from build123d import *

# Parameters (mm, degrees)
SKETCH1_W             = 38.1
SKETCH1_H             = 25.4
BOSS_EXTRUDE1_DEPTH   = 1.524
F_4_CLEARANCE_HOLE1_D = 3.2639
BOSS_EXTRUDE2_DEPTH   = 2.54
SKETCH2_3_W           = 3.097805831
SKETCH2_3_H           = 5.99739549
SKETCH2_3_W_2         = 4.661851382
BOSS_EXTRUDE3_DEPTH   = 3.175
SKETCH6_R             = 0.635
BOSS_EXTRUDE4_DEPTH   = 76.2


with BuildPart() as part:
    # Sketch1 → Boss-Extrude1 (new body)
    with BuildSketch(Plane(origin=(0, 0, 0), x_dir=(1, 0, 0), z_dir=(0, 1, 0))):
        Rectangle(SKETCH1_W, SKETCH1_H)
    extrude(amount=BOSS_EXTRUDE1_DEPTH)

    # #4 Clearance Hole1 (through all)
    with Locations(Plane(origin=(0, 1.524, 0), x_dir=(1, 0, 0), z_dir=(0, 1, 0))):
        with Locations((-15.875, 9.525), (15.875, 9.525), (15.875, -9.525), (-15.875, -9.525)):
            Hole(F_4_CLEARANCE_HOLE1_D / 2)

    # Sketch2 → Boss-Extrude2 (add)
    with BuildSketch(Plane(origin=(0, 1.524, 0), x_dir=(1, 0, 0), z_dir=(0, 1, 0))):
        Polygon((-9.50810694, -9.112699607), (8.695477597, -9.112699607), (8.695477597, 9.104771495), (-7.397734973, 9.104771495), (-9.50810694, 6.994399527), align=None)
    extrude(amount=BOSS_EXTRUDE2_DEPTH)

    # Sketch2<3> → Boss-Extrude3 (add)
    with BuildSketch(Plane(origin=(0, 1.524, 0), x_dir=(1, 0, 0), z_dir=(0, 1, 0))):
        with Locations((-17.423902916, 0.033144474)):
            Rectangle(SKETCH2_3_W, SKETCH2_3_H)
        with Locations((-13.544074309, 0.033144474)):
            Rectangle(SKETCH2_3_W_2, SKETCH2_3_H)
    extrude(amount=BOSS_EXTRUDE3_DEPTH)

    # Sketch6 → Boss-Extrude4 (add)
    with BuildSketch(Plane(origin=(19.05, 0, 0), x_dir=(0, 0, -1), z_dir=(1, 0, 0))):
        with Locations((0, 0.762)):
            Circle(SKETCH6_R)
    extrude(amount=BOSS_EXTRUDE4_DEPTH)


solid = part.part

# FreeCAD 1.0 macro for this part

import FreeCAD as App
import Part
import Sketcher
Q = App.Units.Quantity


def add_polygon(sketch, points):
    """Adds a closed chain of lines whose ends are joined by coincident constraints."""
    first, n = sketch.GeometryCount, len(points)
    for a, b in zip(points, points[1:] + points[:1]):
        sketch.addGeometry(Part.LineSegment(App.Vector(*a, 0), App.Vector(*b, 0)), False)
    for i in range(n):
        sketch.addConstraint(Sketcher.Constraint("Coincident", first + i, 2, first + (i + 1) % n, 1))

doc = App.newDocument("Part")
body = doc.addObject("PartDesign::Body", "Body")

sketch1 = doc.addObject("Sketcher::SketchObject", "Sketch")
body.addObject(sketch1)
sketch1.AttachmentSupport = (doc.XZ_Plane, [""])
sketch1.MapMode = "FlatFace"
add_polygon(sketch1, [(-19, -13), (-19, 13), (19, 13), (19, -13)])
sketch1.addConstraint([
    Sketcher.Constraint("Vertical", 0),
    Sketcher.Constraint("Horizontal", 1),
    Sketcher.Constraint("Vertical", 2),
    Sketcher.Constraint("Horizontal", 3),
    Sketcher.Constraint("Symmetric", 0, 2, 2, 2, -1, 1),
    Sketcher.Constraint("DistanceY", 0, 1, 0, 2, Q("1 in")),
    Sketcher.Constraint("DistanceX", 1, 1, 1, 2, Q("1.5 in")),
])
pad1 = doc.addObject("PartDesign::Pad", "Pad")
body.addObject(pad1)
pad1.Profile = sketch1
pad1.Length = Q("0.06 in")
pad1.Reversed = True

sketch2 = doc.addObject("Sketcher::SketchObject", "Sketch001")
body.addObject(sketch2)
sketch2.AttachmentSupport = (doc.XZ_Plane, [""])
sketch2.MapMode = "FlatFace"
sketch2.AttachmentOffset = App.Placement(App.Vector(0, 0, -0.06 * 25.4), App.Rotation())
sketch2.addGeometry([
    Part.Circle(App.Vector(-15.9, -9.5, 0), App.Vector(0, 0, 1), 1.6),
    Part.Circle(App.Vector(15.9, -9.5, 0), App.Vector(0, 0, 1), 1.6),
    Part.Circle(App.Vector(15.9, 9.5, 0), App.Vector(0, 0, 1), 1.6),
    Part.Circle(App.Vector(-15.9, 9.5, 0), App.Vector(0, 0, 1), 1.6),
], False)
sketch2.addConstraint([
    Sketcher.Constraint("Equal", 0, 1),
    Sketcher.Constraint("Equal", 1, 2),
    Sketcher.Constraint("Equal", 2, 3),
    Sketcher.Constraint("Symmetric", 0, 3, 2, 3, -1, 1),
    Sketcher.Constraint("Symmetric", 1, 3, 3, 3, -1, 1),
    Sketcher.Constraint("Symmetric", 0, 3, 1, 3, -2),
    Sketcher.Constraint("Diameter", 0, Q("0.1285 in")),
    Sketcher.Constraint("DistanceX", 0, 3, 1, 3, Q("1.25 in")),
    Sketcher.Constraint("DistanceY", 1, 3, 2, 3, Q("0.75 in")),
])
doc.recompute()
hole = doc.addObject("PartDesign::Hole", "Hole")
body.addObject(hole)
hole.Profile = sketch2
hole.ThreadType = "None"
hole.Diameter = Q("0.1285 in")
hole.DepthType = "ThroughAll"
hole.Reversed = True

sketch3 = doc.addObject("Sketcher::SketchObject", "Sketch002")
body.addObject(sketch3)
sketch3.AttachmentSupport = (doc.XZ_Plane, [""])
sketch3.MapMode = "FlatFace"
sketch3.AttachmentOffset = App.Placement(App.Vector(0, 0, -0.06 * 25.4), App.Rotation())
add_polygon(sketch3, [(-9.5, 9.1), (8.7, 9.1), (8.7, -9.1), (-7.4, -9.1), (-9.5, -7)])
sketch3.addConstraint([
    Sketcher.Constraint("Horizontal", 0),
    Sketcher.Constraint("Vertical", 1),
    Sketcher.Constraint("Horizontal", 2),
    Sketcher.Constraint("Vertical", 4),
    Sketcher.Constraint("Angle", 3, Q("135 deg")),
    Sketcher.Constraint("DistanceY", 4, 1, 4, 2, 16.107099),
    Sketcher.Constraint("DistanceY", 1, 2, 1, 1, 18.217471),
    Sketcher.Constraint("DistanceY", -1, 1, 0, 2, 9.1127),
    Sketcher.Constraint("DistanceX", 0, 1, 0, 2, 18.203585),
    Sketcher.Constraint("DistanceX", -1, 1, 0, 2, 8.695478),
])
pad2 = doc.addObject("PartDesign::Pad", "Pad001")
body.addObject(pad2)
pad2.Profile = sketch3
pad2.Length = Q("0.1 in")
pad2.Reversed = True

sketch4 = doc.addObject("Sketcher::SketchObject", "Sketch003")
body.addObject(sketch4)
sketch4.AttachmentSupport = (doc.XZ_Plane, [""])
sketch4.MapMode = "FlatFace"
sketch4.AttachmentOffset = App.Placement(App.Vector(0, 0, -0.06 * 25.4), App.Rotation())
add_polygon(sketch4, [(-19, -3), (-19, 3), (-11, 3), (-11, -3)])
sketch4.addConstraint([
    Sketcher.Constraint("Vertical", 0),
    Sketcher.Constraint("Horizontal", 1),
    Sketcher.Constraint("Vertical", 2),
    Sketcher.Constraint("Horizontal", 3),
    Sketcher.Constraint("DistanceX", 1, 1, 1, 2, 7.759657),
    Sketcher.Constraint("DistanceY", 0, 1, 0, 2, 5.997395),
    Sketcher.Constraint("DistanceX", 1, 2, -1, 1, 11.213149),
    Sketcher.Constraint("DistanceY", -1, 1, 0, 2, 2.965553),
])
pad3 = doc.addObject("PartDesign::Pad", "Pad002")
body.addObject(pad3)
pad3.Profile = sketch4
pad3.Length = Q("0.125 in")
pad3.Reversed = True

sketch5 = doc.addObject("Sketcher::SketchObject", "Sketch004")
body.addObject(sketch5)
sketch5.AttachmentSupport = (doc.YZ_Plane, [""])
sketch5.MapMode = "FlatFace"
sketch5.AttachmentOffset = App.Placement(App.Vector(0, 0, 0.75 * 25.4), App.Rotation())
sketch5.addGeometry(Part.Circle(App.Vector(0.8, 0, 0), App.Vector(0, 0, 1), 0.6), False)
sketch5.addConstraint([
    Sketcher.Constraint("PointOnObject", 0, 3, -1),
    Sketcher.Constraint("Diameter", 0, Q("0.05 in")),
    Sketcher.Constraint("DistanceX", -1, 1, 0, 3, Q("0.03 in")),
])
pad4 = doc.addObject("PartDesign::Pad", "Pad003")
body.addObject(pad4)
pad4.Profile = sketch5
pad4.Length = Q("3 in")

doc.recompute()
